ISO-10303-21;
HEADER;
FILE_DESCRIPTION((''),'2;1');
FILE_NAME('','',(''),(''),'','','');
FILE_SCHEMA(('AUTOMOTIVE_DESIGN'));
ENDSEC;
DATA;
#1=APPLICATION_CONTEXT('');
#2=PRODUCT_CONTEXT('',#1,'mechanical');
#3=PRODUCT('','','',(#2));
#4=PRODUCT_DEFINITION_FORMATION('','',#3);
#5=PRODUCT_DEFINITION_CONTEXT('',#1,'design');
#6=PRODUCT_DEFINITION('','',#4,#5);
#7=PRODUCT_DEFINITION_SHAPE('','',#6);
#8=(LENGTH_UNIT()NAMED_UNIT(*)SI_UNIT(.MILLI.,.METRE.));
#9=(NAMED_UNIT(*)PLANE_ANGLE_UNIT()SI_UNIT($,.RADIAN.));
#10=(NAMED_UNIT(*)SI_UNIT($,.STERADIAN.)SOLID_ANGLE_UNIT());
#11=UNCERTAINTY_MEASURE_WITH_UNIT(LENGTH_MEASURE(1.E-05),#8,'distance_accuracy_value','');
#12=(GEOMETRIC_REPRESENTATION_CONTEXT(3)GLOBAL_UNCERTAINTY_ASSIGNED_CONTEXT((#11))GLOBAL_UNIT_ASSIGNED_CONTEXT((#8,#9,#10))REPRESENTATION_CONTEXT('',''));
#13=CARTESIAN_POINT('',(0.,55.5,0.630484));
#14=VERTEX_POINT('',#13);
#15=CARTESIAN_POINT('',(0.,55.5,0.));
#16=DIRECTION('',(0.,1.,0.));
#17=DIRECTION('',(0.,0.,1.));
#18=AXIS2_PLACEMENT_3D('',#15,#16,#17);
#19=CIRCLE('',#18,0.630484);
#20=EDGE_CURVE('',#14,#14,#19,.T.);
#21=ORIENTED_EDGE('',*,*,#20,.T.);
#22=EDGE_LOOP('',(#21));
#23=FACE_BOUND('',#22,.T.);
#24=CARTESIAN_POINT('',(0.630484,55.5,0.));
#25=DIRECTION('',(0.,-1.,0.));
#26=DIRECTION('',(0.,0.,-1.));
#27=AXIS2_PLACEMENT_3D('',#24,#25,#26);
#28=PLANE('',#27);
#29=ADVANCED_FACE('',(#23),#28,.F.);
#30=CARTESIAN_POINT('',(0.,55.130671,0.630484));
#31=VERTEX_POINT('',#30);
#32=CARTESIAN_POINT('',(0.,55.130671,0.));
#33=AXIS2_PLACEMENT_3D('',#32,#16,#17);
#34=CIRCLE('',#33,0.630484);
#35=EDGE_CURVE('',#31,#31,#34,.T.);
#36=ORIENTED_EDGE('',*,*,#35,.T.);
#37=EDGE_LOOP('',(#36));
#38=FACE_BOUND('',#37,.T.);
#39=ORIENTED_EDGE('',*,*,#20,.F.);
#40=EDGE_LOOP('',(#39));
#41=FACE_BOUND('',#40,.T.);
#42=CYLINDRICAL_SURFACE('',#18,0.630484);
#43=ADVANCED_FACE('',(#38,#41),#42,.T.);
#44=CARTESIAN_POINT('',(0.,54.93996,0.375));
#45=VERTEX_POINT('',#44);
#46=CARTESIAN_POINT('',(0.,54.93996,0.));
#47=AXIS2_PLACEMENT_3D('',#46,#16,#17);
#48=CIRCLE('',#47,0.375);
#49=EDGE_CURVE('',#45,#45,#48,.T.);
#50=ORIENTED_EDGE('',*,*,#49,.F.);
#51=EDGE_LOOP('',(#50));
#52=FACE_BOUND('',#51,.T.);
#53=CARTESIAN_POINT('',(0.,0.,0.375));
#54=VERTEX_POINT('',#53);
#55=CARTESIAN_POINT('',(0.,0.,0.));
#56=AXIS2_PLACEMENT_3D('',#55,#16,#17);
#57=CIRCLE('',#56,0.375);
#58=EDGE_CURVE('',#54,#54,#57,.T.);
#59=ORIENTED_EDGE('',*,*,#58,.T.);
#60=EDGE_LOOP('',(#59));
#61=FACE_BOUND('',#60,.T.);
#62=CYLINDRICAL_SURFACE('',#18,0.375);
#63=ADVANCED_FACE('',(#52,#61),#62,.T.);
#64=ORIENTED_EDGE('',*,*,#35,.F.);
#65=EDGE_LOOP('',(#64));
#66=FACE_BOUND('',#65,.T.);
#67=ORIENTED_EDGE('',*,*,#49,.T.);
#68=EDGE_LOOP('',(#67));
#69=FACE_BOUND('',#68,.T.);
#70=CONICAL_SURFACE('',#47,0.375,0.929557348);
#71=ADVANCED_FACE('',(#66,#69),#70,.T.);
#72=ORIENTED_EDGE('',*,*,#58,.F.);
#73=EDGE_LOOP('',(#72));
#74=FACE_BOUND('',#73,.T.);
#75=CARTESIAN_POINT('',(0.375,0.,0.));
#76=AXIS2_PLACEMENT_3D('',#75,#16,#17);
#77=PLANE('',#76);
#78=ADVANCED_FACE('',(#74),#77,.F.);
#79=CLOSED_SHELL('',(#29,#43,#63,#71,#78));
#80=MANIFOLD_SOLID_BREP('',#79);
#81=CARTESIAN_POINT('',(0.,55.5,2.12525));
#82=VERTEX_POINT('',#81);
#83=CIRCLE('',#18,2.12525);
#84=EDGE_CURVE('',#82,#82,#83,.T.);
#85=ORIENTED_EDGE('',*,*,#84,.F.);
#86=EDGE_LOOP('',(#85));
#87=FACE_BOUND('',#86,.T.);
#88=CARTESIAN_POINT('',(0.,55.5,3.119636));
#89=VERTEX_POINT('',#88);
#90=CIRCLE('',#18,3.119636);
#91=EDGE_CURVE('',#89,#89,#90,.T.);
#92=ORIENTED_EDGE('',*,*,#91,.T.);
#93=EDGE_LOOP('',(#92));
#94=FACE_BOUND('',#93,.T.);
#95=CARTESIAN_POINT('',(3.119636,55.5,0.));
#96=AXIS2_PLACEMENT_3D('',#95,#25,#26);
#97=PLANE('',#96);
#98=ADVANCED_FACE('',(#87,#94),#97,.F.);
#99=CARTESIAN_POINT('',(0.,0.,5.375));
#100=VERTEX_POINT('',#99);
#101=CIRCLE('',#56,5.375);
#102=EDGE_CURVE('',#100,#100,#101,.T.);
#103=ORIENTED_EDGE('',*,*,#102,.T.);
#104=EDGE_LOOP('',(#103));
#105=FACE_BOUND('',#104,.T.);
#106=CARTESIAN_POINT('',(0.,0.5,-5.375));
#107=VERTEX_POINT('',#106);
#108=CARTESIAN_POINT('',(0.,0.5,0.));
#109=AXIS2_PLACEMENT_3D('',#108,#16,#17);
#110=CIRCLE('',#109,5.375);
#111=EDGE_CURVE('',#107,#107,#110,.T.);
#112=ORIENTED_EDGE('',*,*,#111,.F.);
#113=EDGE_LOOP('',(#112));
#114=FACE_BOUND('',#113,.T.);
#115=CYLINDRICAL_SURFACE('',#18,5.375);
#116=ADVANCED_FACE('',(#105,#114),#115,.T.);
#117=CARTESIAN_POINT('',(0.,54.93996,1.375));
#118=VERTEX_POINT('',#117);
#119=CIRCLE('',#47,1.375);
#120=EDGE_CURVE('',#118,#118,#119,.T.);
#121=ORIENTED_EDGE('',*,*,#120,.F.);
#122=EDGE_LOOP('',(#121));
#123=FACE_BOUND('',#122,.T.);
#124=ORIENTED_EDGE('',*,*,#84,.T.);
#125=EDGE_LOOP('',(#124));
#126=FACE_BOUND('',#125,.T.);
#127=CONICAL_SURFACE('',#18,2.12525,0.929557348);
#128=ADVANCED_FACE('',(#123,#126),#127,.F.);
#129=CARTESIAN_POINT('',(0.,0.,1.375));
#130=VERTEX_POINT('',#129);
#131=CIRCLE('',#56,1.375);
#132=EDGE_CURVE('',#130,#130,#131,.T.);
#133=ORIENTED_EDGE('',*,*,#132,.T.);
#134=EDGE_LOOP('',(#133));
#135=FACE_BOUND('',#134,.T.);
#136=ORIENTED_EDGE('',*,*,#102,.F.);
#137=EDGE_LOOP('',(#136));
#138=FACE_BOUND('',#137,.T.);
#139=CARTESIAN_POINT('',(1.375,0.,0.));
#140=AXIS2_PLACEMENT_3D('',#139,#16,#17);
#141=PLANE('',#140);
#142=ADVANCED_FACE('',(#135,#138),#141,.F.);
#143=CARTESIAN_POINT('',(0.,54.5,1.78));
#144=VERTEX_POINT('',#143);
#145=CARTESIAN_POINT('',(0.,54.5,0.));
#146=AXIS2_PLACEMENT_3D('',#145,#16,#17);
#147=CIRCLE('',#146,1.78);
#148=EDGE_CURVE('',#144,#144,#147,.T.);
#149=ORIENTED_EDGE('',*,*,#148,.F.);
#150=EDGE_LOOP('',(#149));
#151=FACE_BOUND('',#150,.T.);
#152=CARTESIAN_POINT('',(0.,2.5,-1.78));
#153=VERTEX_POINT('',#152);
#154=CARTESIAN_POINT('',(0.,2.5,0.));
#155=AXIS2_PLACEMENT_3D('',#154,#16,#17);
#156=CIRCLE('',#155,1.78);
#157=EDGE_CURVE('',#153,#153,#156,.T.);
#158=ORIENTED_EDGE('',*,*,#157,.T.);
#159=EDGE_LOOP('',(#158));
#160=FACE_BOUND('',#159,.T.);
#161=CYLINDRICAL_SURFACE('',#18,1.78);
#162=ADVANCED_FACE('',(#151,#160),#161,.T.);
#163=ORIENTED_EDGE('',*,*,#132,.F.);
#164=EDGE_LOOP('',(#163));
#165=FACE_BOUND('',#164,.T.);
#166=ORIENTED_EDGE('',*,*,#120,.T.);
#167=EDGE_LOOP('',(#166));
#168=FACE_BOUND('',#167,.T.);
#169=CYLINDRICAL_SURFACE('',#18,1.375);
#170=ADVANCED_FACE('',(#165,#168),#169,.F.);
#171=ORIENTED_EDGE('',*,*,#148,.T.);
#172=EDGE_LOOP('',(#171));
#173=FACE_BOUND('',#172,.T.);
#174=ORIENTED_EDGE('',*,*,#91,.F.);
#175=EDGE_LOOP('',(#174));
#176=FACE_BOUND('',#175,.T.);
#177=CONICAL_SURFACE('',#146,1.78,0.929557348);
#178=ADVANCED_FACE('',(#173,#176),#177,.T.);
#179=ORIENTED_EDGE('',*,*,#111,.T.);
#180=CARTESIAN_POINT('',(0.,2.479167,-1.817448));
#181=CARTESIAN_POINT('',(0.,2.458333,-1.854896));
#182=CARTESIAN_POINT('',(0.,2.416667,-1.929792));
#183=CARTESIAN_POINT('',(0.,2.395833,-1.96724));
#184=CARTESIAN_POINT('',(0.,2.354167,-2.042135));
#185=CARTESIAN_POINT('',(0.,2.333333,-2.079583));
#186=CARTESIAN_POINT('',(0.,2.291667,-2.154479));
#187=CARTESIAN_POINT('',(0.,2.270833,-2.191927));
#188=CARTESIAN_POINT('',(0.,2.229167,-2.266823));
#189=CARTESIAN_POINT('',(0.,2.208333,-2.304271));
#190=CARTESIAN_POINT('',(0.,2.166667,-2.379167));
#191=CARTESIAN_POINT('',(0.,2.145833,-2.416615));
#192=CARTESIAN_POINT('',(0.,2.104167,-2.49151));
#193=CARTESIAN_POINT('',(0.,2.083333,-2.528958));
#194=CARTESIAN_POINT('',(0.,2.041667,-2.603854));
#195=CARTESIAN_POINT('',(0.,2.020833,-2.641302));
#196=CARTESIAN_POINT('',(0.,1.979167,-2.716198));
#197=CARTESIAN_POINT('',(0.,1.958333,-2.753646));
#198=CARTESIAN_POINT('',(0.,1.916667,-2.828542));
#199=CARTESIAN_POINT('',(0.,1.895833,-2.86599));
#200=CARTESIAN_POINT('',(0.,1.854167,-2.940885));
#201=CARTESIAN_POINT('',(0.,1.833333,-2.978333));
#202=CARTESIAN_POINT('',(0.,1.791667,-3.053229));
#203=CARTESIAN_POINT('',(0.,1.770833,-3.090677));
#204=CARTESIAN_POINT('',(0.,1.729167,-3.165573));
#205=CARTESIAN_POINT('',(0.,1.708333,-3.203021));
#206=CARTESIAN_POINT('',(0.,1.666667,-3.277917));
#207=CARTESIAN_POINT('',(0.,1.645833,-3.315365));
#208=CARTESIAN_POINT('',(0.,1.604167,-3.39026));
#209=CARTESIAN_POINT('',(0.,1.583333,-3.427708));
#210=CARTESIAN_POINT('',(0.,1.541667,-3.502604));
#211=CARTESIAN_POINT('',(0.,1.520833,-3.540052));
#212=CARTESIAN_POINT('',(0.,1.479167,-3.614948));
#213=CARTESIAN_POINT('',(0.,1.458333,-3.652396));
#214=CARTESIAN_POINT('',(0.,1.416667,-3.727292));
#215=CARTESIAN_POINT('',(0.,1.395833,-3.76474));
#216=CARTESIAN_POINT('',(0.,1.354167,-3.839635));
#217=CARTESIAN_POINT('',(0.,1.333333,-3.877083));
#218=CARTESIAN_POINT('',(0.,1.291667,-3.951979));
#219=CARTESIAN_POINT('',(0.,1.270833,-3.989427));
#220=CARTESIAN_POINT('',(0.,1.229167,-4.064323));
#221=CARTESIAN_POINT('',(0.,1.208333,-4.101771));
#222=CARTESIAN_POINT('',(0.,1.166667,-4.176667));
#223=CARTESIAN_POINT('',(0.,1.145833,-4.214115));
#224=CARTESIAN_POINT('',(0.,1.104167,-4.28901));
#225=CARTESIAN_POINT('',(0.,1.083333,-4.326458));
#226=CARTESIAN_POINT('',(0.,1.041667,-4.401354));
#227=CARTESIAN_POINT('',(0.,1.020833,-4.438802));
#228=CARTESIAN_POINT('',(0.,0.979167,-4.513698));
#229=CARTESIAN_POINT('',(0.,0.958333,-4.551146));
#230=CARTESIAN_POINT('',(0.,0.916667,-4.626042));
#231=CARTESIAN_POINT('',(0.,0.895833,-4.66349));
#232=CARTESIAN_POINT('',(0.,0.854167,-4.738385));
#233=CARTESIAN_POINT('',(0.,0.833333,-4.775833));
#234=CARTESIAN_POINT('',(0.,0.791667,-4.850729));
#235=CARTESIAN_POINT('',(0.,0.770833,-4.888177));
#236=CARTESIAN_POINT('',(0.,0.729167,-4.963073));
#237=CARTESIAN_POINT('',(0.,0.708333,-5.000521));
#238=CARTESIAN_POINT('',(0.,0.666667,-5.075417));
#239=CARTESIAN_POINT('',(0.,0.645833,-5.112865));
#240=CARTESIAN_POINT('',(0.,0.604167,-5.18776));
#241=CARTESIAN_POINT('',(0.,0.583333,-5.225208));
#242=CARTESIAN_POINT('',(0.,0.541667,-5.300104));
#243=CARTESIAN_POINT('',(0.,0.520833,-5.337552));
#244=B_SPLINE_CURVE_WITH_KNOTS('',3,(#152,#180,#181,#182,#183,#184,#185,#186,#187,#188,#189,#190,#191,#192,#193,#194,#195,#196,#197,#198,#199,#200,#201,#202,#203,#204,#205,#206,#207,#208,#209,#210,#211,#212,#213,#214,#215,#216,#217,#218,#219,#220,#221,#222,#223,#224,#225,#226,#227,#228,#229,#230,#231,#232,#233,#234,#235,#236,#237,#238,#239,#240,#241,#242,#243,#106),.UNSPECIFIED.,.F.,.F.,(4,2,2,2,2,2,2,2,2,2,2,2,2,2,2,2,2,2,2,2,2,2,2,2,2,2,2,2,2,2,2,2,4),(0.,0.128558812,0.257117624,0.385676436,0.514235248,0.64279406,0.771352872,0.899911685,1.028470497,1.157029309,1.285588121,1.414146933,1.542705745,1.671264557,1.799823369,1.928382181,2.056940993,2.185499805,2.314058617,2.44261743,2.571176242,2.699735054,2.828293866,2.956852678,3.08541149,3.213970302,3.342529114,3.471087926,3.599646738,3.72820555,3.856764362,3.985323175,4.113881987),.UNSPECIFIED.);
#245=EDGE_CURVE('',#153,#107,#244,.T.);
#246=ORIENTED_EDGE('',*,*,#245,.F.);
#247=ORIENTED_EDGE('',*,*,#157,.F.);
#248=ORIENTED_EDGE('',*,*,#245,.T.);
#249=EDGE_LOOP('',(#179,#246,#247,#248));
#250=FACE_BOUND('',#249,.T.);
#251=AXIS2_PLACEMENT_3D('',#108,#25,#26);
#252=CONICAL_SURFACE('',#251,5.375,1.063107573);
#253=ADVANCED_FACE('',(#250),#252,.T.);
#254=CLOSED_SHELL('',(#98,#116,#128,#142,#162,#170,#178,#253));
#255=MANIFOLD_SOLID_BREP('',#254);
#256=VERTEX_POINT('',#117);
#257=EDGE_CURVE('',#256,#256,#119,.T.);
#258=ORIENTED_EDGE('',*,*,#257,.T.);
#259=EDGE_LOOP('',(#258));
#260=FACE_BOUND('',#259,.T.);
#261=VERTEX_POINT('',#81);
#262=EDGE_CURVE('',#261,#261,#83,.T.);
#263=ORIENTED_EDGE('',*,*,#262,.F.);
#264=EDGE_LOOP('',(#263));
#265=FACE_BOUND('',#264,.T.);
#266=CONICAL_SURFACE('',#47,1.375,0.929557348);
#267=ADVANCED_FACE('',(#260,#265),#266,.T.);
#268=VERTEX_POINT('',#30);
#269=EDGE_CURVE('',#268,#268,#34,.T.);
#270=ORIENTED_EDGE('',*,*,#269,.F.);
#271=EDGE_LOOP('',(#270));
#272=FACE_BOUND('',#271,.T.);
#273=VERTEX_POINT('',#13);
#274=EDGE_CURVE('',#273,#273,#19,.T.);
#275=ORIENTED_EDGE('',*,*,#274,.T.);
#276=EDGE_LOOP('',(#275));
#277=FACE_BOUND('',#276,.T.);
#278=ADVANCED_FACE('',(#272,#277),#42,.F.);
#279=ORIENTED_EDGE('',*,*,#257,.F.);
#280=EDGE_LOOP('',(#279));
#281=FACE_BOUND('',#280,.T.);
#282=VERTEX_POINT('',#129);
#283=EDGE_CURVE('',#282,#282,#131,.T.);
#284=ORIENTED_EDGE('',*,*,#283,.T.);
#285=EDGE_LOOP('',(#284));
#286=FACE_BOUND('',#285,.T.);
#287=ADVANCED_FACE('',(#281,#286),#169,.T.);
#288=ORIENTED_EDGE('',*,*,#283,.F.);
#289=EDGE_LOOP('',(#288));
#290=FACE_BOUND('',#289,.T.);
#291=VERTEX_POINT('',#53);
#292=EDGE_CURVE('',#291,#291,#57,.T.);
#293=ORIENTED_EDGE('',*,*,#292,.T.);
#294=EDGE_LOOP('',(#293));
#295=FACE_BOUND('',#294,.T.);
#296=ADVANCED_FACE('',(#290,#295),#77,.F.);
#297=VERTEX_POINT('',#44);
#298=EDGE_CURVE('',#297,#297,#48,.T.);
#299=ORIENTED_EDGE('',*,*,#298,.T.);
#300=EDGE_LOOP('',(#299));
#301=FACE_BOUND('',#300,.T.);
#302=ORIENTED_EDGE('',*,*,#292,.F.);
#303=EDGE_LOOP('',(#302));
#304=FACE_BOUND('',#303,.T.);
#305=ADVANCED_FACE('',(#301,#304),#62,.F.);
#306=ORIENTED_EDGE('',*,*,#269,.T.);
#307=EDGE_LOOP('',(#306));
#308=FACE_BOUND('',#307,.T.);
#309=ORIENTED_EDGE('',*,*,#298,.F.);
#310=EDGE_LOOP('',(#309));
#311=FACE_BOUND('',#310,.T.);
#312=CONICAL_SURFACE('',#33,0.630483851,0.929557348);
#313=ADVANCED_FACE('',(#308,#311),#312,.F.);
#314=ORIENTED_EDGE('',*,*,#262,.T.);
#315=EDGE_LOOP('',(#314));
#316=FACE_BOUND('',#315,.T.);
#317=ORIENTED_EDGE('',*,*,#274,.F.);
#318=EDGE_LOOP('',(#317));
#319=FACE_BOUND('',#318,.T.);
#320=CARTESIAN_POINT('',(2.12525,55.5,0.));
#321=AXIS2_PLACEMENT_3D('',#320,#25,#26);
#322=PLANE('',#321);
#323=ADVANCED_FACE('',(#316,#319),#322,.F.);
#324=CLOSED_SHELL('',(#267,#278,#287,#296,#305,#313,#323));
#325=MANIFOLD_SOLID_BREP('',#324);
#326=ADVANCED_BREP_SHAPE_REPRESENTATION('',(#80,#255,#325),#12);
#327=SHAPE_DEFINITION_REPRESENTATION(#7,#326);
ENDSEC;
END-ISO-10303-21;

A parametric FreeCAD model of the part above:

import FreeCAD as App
import Part
import Sketcher
from FreeCAD import Vector

doc = App.newDocument("Part")
body = doc.addObject("PartDesign::Body", "Body")
body.AllowCompound = True

sketch1 = body.newObject("Sketcher::SketchObject", "Sketch")
sketch1.AttachmentSupport = (doc.getObject("XY_Plane"), [""])
sketch1.MapMode = "FlatFace"
sketch1.addGeometry([
    Part.LineSegment(Vector(5.38, 0, 0), Vector(5.38, 0.5, 0)),
    Part.LineSegment(Vector(5.38, 0.5, 0), Vector(1.78, 2.5, 0)),
    Part.LineSegment(Vector(1.78, 2.5, 0), Vector(1.78, 54.5, 0)),
    Part.LineSegment(Vector(1.78, 54.5, 0), Vector(3.12, 55.5, 0)),
    Part.LineSegment(Vector(3.12, 55.5, 0), Vector(2.13, 55.5, 0)),
    Part.LineSegment(Vector(2.13, 55.5, 0), Vector(1.38, 54.94, 0)),
    Part.LineSegment(Vector(1.38, 54.94, 0), Vector(1.38, 0, 0)),
    Part.LineSegment(Vector(1.38, 0, 0), Vector(5.38, 0, 0)),
    Part.LineSegment(Vector(0.38, 0, 0), Vector(0.38, 54.94, 0)),
    Part.LineSegment(Vector(0.38, 54.94, 0), Vector(0.63, 55.13, 0)),
    Part.LineSegment(Vector(0.63, 55.13, 0), Vector(0.63, 55.5, 0)),
    Part.LineSegment(Vector(0.63, 55.5, 0), Vector(0, 55.5, 0)),
    Part.LineSegment(Vector(0, 55.5, 0), Vector(0, 0, 0)),
    Part.LineSegment(Vector(0, 0, 0), Vector(0.38, 0, 0)),
], False)
sketch1.addConstraint([
    Sketcher.Constraint("Coincident", 0, 2, 1, 1),
    Sketcher.Constraint("Coincident", 1, 2, 2, 1),
    Sketcher.Constraint("Coincident", 2, 2, 3, 1),
    Sketcher.Constraint("Coincident", 3, 2, 4, 1),
    Sketcher.Constraint("Coincident", 4, 2, 5, 1),
    Sketcher.Constraint("Coincident", 5, 2, 6, 1),
    Sketcher.Constraint("Coincident", 6, 2, 7, 1),
    Sketcher.Constraint("Coincident", 7, 2, 0, 1),
    Sketcher.Constraint("Coincident", 8, 2, 9, 1),
    Sketcher.Constraint("Coincident", 9, 2, 10, 1),
    Sketcher.Constraint("Coincident", 10, 2, 11, 1),
    Sketcher.Constraint("Coincident", 11, 2, 12, 1),
    Sketcher.Constraint("Coincident", 12, 2, 13, 1),
    Sketcher.Constraint("Coincident", 13, 2, 8, 1),
    Sketcher.Constraint("Vertical", 0),
    Sketcher.Constraint("Vertical", 2),
    Sketcher.Constraint("Horizontal", 4),
    Sketcher.Constraint("Vertical", 6),
    Sketcher.Constraint("Horizontal", 7),
    Sketcher.Constraint("Vertical", 8),
    Sketcher.Constraint("Vertical", 10),
    Sketcher.Constraint("Horizontal", 11),
    Sketcher.Constraint("Vertical", 12),
    Sketcher.Constraint("Horizontal", 13),
    Sketcher.Constraint("Coincident", 12, 2, -1, 1),
    Sketcher.Constraint("PointOnObject", 6, 2, -1),
    Sketcher.Constraint("Parallel", 3, 5),
    Sketcher.Constraint("Parallel", 5, 9),
    Sketcher.Constraint("Horizontal", 5, 2, 8, 2),
    Sketcher.Constraint("Horizontal", 4, 2, 10, 2),
    Sketcher.Constraint("DistanceX", 7, 1, 7, 2, 4.0),
    Sketcher.Constraint("DistanceY", 2, 1, 2, 2, 52.0),
    Sketcher.Constraint("DistanceY", 0, 1, 0, 2, 0.5),
    Sketcher.Constraint("DistanceY", 12, 2, 12, 1, 55.5),
    Sketcher.Constraint("DistanceY", 0, 2, 1, 2, 2.0),
    Sketcher.Constraint("DistanceX", 8, 2, 5, 2, 1.0),
    Sketcher.Constraint("DistanceX", 13, 1, 13, 2, 0.375),
    Sketcher.Constraint("DistanceX", -1, 1, 1, 2, 1.78),
    Sketcher.Constraint("DistanceY", 6, 2, 6, 1, 54.93996),
    Sketcher.Constraint("DistanceY", 10, 1, 10, 2, 0.369329),
    Sketcher.Constraint("DistanceX", 4, 2, 4, 1, 0.994386),
])
revolution = body.newObject("PartDesign::Revolution", "Revolution")
revolution.Profile = sketch1
revolution.ReferenceAxis = (sketch1, ["V_Axis"])
revolution.Angle = 360
body2 = doc.addObject("PartDesign::Body", "Body001")

sketch2 = body2.newObject("Sketcher::SketchObject", "Sketch001")
sketch2.AttachmentSupport = (doc.getObject("XY_Plane001"), [""])
sketch2.MapMode = "FlatFace"
sketch2.addGeometry([
    Part.LineSegment(Vector(0.63, 55.13, 0), Vector(0.38, 54.94, 0)),
    Part.LineSegment(Vector(0.38, 54.94, 0), Vector(0.38, 0, 0)),
    Part.LineSegment(Vector(0.38, 0, 0), Vector(1.38, 0, 0)),
    Part.LineSegment(Vector(1.38, 0, 0), Vector(1.38, 54.94, 0)),
    Part.LineSegment(Vector(1.38, 54.94, 0), Vector(2.13, 55.5, 0)),
    Part.LineSegment(Vector(2.13, 55.5, 0), Vector(0.63, 55.5, 0)),
    Part.LineSegment(Vector(0.63, 55.5, 0), Vector(0.63, 55.13, 0)),
], False)
sketch2.addConstraint([
    Sketcher.Constraint("Coincident", 0, 2, 1, 1),
    Sketcher.Constraint("Coincident", 1, 2, 2, 1),
    Sketcher.Constraint("Coincident", 2, 2, 3, 1),
    Sketcher.Constraint("Coincident", 3, 2, 4, 1),
    Sketcher.Constraint("Coincident", 4, 2, 5, 1),
    Sketcher.Constraint("Coincident", 5, 2, 6, 1),
    Sketcher.Constraint("Coincident", 6, 2, 0, 1),
    Sketcher.Constraint("Vertical", 1),
    Sketcher.Constraint("Horizontal", 2),
    Sketcher.Constraint("Vertical", 3),
    Sketcher.Constraint("Horizontal", 5),
    Sketcher.Constraint("Vertical", 6),
    Sketcher.Constraint("PointOnObject", 1, 2, -1),
    Sketcher.Constraint("Parallel", 0, 4),
    Sketcher.Constraint("Horizontal", 0, 2, 3, 2),
    Sketcher.Constraint("DistanceX", 2, 1, 2, 2, 1.0),
    Sketcher.Constraint("DistanceY", -1, 1, 4, 2, 55.5),
    Sketcher.Constraint("DistanceX", -1, 1, 0, 2, 0.375),
    Sketcher.Constraint("DistanceY", 1, 2, 1, 1, 54.93996),
    Sketcher.Constraint("DistanceY", 6, 2, 6, 1, 0.369329),
    Sketcher.Constraint("DistanceX", 5, 2, 5, 1, 1.494766),
])
revolution2 = body2.newObject("PartDesign::Revolution", "Revolution001")
revolution2.Profile = sketch2
revolution2.ReferenceAxis = (sketch2, ["V_Axis"])
revolution2.Angle = 360

doc.recompute()
